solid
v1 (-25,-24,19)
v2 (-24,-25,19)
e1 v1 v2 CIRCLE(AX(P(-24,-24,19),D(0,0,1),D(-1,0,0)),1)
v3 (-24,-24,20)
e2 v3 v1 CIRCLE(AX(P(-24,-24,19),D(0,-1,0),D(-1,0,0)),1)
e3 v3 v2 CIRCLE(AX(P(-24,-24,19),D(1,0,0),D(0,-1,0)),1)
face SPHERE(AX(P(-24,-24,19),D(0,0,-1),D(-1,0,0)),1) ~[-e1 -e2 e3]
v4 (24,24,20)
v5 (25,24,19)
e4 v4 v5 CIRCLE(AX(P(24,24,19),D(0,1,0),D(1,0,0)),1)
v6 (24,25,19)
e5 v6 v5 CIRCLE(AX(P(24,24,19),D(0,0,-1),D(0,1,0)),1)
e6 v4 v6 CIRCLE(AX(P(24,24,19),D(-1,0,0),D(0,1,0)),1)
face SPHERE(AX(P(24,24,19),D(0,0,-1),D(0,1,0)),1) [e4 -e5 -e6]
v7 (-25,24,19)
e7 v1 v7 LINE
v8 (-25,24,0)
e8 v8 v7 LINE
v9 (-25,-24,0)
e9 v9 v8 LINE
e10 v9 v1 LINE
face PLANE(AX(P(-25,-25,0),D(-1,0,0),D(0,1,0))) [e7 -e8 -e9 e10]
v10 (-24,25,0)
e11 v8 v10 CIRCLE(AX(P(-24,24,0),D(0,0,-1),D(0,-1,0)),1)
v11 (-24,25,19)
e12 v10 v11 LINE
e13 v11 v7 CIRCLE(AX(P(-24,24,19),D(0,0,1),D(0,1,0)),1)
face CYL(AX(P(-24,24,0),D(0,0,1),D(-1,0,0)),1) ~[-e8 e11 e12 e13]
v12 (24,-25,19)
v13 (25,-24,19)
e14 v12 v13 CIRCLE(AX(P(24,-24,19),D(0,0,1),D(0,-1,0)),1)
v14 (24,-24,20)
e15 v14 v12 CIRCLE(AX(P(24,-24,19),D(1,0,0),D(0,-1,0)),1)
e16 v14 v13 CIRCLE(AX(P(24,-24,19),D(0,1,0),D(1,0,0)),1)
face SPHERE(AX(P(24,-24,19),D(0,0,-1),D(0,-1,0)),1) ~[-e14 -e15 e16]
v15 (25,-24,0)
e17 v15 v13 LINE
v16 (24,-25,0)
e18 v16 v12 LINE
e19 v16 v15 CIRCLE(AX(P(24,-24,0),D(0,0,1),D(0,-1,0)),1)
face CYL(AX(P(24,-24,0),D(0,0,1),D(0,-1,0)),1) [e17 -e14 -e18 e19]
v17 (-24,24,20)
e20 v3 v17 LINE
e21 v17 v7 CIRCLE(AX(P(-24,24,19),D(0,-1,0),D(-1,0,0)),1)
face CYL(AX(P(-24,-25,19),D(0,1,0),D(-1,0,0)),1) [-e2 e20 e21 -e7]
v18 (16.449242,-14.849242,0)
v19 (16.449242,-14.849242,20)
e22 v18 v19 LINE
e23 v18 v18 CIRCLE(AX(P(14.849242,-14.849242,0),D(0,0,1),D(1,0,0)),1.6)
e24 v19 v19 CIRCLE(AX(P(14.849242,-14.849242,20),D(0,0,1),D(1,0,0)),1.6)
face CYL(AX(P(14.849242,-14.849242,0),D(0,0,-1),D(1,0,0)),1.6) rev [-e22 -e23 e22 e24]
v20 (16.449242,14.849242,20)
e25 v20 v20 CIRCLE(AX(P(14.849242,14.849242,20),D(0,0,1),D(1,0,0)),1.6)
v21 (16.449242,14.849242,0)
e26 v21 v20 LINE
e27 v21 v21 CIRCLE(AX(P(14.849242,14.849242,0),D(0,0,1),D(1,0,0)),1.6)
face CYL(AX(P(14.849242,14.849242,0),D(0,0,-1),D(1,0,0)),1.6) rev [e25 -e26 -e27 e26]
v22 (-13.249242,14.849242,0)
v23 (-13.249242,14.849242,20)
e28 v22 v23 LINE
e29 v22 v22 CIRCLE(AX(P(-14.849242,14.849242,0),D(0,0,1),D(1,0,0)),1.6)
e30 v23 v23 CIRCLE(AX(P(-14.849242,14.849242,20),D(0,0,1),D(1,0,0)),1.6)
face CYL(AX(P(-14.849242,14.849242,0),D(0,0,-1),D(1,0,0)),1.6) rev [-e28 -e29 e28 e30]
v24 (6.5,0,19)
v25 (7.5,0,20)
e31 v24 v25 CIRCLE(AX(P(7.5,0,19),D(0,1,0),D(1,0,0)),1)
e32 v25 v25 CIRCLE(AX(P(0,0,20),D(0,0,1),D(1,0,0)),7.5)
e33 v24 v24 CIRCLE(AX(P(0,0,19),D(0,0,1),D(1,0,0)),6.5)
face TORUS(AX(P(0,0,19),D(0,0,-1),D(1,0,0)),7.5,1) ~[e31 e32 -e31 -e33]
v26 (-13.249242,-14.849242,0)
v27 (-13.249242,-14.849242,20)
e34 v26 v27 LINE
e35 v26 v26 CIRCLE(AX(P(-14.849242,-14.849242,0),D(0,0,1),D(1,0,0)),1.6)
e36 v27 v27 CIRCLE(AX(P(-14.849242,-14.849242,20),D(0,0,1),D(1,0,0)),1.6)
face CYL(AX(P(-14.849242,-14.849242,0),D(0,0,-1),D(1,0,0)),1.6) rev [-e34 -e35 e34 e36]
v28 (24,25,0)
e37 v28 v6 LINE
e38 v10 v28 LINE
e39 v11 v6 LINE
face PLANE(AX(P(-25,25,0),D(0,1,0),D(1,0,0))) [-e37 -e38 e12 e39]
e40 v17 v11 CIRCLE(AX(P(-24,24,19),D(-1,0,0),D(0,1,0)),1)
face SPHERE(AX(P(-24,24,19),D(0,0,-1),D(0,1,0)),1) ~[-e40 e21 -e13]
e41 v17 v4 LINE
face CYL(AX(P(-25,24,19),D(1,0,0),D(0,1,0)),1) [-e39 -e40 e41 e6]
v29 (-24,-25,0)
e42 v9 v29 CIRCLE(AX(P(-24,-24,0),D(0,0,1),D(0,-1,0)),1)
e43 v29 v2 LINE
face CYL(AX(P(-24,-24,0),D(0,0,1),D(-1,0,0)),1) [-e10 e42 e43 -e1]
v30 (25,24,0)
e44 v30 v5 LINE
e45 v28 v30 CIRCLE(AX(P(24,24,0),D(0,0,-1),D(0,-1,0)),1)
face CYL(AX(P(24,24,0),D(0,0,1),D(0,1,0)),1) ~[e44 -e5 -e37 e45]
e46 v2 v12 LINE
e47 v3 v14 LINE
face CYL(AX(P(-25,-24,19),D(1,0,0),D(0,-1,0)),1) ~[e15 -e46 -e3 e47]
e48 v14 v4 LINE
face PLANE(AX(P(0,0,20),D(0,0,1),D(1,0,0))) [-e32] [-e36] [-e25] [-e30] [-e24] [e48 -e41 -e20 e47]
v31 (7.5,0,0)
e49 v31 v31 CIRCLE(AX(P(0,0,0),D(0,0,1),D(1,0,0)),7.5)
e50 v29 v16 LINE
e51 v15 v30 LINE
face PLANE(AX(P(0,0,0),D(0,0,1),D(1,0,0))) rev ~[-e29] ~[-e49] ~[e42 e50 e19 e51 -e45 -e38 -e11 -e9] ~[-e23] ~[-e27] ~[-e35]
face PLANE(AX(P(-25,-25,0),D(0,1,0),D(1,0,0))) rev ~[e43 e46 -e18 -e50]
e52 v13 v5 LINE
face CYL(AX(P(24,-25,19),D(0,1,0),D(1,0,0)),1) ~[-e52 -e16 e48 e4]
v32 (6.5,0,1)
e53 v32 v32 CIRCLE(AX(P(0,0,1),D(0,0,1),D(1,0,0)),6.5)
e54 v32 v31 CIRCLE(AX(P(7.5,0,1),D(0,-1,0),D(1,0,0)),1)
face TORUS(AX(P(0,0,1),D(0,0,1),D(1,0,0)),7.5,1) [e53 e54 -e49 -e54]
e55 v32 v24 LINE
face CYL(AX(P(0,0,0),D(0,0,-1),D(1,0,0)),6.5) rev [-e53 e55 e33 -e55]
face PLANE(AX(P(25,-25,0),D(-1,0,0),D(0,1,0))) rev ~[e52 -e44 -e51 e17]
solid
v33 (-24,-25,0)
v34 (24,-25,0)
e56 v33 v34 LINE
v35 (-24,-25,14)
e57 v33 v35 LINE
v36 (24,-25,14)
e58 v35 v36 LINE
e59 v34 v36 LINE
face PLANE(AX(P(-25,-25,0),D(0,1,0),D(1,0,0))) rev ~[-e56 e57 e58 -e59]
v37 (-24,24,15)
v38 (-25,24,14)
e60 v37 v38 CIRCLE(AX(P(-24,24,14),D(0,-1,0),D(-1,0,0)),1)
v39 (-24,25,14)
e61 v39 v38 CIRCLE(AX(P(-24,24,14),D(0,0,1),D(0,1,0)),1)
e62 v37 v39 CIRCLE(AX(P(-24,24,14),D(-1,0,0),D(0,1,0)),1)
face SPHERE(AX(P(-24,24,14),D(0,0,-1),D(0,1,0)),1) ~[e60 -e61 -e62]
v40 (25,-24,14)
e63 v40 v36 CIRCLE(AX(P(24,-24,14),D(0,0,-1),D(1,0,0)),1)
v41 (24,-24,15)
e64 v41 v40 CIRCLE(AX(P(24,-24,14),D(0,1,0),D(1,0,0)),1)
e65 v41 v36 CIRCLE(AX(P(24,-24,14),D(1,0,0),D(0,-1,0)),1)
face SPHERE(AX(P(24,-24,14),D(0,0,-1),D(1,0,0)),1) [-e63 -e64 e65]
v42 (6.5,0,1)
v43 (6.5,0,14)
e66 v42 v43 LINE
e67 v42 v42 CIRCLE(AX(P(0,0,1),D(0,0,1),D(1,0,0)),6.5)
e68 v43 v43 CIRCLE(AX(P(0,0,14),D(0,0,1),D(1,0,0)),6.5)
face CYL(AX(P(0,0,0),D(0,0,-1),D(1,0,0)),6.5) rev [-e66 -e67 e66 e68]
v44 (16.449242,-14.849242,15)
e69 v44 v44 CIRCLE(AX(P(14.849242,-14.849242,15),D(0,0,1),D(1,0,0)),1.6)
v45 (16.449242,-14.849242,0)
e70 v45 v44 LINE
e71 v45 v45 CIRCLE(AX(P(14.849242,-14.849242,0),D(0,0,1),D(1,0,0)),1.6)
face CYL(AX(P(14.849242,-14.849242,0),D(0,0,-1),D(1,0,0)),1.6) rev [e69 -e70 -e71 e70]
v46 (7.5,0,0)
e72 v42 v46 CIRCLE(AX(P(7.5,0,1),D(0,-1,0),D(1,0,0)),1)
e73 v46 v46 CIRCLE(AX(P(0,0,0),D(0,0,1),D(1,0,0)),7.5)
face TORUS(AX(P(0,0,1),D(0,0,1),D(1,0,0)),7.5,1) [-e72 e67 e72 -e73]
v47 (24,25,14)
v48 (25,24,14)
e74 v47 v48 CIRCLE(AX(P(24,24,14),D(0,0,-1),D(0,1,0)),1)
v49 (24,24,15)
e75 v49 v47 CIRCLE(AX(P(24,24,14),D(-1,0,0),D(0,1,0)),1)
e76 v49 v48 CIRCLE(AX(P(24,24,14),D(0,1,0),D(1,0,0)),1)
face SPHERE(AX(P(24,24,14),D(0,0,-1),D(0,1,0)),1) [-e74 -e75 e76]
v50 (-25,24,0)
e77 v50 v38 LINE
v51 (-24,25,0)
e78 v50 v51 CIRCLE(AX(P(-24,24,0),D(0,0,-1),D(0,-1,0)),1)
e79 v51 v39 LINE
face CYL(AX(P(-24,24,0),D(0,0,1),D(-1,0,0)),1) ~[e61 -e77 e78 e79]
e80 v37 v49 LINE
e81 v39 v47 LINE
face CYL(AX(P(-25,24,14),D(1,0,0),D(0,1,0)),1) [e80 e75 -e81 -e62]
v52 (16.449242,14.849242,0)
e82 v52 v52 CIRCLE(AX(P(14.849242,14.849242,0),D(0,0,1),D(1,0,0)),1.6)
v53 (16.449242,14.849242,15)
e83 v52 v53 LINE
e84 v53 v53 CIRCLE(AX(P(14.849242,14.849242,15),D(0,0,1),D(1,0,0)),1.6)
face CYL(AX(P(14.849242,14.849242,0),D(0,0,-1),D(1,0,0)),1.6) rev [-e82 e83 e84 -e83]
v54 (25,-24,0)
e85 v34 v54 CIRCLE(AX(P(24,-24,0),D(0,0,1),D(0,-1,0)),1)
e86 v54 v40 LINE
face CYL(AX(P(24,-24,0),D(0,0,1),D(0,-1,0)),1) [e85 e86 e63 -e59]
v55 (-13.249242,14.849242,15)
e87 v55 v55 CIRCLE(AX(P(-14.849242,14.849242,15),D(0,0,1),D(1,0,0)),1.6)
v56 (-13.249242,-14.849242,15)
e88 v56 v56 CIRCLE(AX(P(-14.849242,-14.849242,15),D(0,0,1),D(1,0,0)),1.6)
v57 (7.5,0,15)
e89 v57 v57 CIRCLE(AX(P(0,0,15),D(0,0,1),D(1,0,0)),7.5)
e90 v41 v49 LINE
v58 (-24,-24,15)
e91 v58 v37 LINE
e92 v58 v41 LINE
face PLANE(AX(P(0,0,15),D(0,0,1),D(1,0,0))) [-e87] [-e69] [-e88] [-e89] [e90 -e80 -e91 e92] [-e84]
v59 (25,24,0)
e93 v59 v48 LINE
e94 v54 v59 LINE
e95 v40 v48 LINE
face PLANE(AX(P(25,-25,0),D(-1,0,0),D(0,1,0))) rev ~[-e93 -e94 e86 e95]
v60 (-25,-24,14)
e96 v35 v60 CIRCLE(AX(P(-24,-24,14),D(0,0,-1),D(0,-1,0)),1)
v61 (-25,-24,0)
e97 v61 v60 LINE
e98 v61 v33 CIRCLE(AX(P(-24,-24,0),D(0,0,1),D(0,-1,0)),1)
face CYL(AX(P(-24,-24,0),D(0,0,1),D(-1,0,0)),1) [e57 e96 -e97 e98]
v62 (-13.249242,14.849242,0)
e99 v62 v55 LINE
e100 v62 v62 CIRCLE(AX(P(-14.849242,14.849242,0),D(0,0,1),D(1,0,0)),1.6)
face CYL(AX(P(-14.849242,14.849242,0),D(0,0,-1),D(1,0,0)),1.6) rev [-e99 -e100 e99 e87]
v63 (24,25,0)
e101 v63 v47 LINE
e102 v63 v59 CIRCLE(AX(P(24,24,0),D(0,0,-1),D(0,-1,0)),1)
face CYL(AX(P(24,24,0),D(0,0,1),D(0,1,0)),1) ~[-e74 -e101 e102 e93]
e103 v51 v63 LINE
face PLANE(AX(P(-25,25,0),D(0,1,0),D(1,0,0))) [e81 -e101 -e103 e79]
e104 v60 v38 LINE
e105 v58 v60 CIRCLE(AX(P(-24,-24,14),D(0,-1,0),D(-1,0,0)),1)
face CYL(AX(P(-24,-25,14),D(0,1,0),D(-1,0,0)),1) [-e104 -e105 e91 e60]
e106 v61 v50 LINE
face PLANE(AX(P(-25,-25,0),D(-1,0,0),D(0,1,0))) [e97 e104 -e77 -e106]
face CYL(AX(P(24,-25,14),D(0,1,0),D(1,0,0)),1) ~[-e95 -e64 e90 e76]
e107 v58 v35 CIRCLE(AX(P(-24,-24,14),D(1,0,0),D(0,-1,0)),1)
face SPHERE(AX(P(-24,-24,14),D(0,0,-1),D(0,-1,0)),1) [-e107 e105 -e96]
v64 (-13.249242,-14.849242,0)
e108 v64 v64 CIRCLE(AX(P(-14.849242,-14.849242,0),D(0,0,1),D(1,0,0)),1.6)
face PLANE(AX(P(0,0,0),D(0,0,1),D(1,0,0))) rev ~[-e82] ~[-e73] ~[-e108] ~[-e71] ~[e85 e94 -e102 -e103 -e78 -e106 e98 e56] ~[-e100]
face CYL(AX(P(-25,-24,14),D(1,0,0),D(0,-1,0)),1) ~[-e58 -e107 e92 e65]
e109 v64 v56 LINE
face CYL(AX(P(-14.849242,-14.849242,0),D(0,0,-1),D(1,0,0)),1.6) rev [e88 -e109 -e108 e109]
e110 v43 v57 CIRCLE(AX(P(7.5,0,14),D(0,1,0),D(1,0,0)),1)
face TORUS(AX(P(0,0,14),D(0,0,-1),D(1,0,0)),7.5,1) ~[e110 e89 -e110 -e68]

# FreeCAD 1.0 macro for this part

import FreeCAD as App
import Part
import Sketcher

V = App.Vector
Q = App.Units.Quantity


def edges_at(feature, points):
    """Names of the edges that pass closest to the given points."""
    edges = feature.Shape.Edges
    near = lambda p: min(range(len(edges)), key=lambda i: edges[i].distToShape(Part.Vertex(*p))[0])
    return sorted({f"Edge{near(p) + 1}" for p in points})


def add_polygon(sketch, points):
    """Adds a closed chain of lines whose ends are joined by coincident constraints."""
    first, n = sketch.GeometryCount, len(points)
    for a, b in zip(points, points[1:] + points[:1]):
        sketch.addGeometry(Part.LineSegment(App.Vector(*a, 0), App.Vector(*b, 0)), False)
    for i in range(n):
        sketch.addConstraint(Sketcher.Constraint("Coincident", first + i, 2, first + (i + 1) % n, 1))

doc = App.newDocument("Part")
body = doc.addObject("PartDesign::Body", "Body")

# Sketch on XY plane
sketch1 = body.newObject("Sketcher::SketchObject", "Sketch")
sketch1.AttachmentSupport = (doc.getObject("XY_Plane"), [""])
sketch1.MapMode = "FlatFace"
add_polygon(sketch1, [(-25, 25), (-25, -25), (25, -25), (25, 25)])  # lines 0-3
sketch1.addGeometry(Part.Circle(V(-14.8, -14.8, 0), V(0, 0, 1), 1.6), False)  # 4
sketch1.addGeometry(Part.Circle(V(14.8, -14.8, 0), V(0, 0, 1), 1.6), False)  # 5
sketch1.addGeometry(Part.Circle(V(-14.8, 14.8, 0), V(0, 0, 1), 1.6), False)  # 6
sketch1.addGeometry(Part.Circle(V(0, 0, 0), V(0, 0, 1), 6.5), False)  # 7
sketch1.addGeometry(Part.Circle(V(14.8, 14.8, 0), V(0, 0, 1), 1.6), False)  # 8
sketch1.addConstraint([
    Sketcher.Constraint("Vertical", 0),
    Sketcher.Constraint("Horizontal", 1),
    Sketcher.Constraint("Vertical", 2),
    Sketcher.Constraint("Horizontal", 3),
    Sketcher.Constraint("Coincident", 7, 3, -1, 1),
    Sketcher.Constraint("Equal", 4, 5),
    Sketcher.Constraint("Equal", 5, 6),
    Sketcher.Constraint("Equal", 6, 8),
    Sketcher.Constraint("Symmetric", 5, 3, 6, 3, -1, 1),
    Sketcher.Constraint("Symmetric", 4, 3, 8, 3, -1, 1),
    Sketcher.Constraint("Symmetric", 0, 2, 2, 2, -1, 1),
    Sketcher.Constraint("Symmetric", 4, 3, 5, 3, -2),
    Sketcher.Constraint("Equal", 3, 0),
    Sketcher.Constraint("Diameter", 7, Q("13 mm")),
    Sketcher.Constraint("Diameter", 4, Q("3.2 mm")),
    Sketcher.Constraint("DistanceX", 1, 1, 1, 2, Q("50 mm")),
    Sketcher.Constraint("DistanceX", 4, 3, -1, 1, Q("14.849242 mm")),
    Sketcher.Constraint("DistanceY", 4, 3, -1, 1, Q("14.849242 mm")),
])
pad1 = body.newObject("PartDesign::Pad", "Pad")
pad1.Profile = sketch1
pad1.Length = 15
doc.recompute()

fillet = body.newObject("PartDesign::Fillet", "Fillet")
fillet.Base = (pad1, edges_at(pad1, [
    (-25, -25, 7.5),
    (25, -25, 7.5),
    (25, 25, 7.5),
    (-25, 25, 7.5),
    (0, 25, 15),
    (25, 0, 15),
    (0, -25, 15),
    (-25, 0, 15),
    (-6.5, 0, 15),
    (-6.5, 0, 0),
]))
fillet.Radius = 1
body2 = doc.addObject("PartDesign::Body", "Body001")

# Sketch on XY plane
sketch2 = body2.newObject("Sketcher::SketchObject", "Sketch001")
sketch2.AttachmentSupport = (doc.getObject("XY_Plane001"), [""])
sketch2.MapMode = "FlatFace"
add_polygon(sketch2, [(-25, 25), (-25, -25), (25, -25), (25, 25)])  # lines 0-3
sketch2.addGeometry(Part.Circle(V(-14.8, -14.8, 0), V(0, 0, 1), 1.6), False)  # 4
sketch2.addGeometry(Part.Circle(V(14.8, -14.8, 0), V(0, 0, 1), 1.6), False)  # 5
sketch2.addGeometry(Part.Circle(V(-14.8, 14.8, 0), V(0, 0, 1), 1.6), False)  # 6
sketch2.addGeometry(Part.Circle(V(0, 0, 0), V(0, 0, 1), 6.5), False)  # 7
sketch2.addGeometry(Part.Circle(V(14.8, 14.8, 0), V(0, 0, 1), 1.6), False)  # 8
sketch2.addConstraint([
    Sketcher.Constraint("Vertical", 0),
    Sketcher.Constraint("Horizontal", 1),
    Sketcher.Constraint("Vertical", 2),
    Sketcher.Constraint("Horizontal", 3),
    Sketcher.Constraint("Coincident", 7, 3, -1, 1),
    Sketcher.Constraint("Equal", 4, 5),
    Sketcher.Constraint("Equal", 5, 6),
    Sketcher.Constraint("Equal", 6, 8),
    Sketcher.Constraint("Symmetric", 5, 3, 6, 3, -1, 1),
    Sketcher.Constraint("Symmetric", 4, 3, 8, 3, -1, 1),
    Sketcher.Constraint("Symmetric", 0, 2, 2, 2, -1, 1),
    Sketcher.Constraint("Symmetric", 4, 3, 5, 3, -2),
    Sketcher.Constraint("Equal", 3, 0),
    Sketcher.Constraint("Diameter", 7, Q("13 mm")),
    Sketcher.Constraint("Diameter", 4, Q("3.2 mm")),
    Sketcher.Constraint("DistanceX", 1, 1, 1, 2, Q("50 mm")),
    Sketcher.Constraint("DistanceX", 4, 3, -1, 1, Q("14.849242 mm")),
    Sketcher.Constraint("DistanceY", 4, 3, -1, 1, Q("14.849242 mm")),
])
pad2 = body2.newObject("PartDesign::Pad", "Pad001")
pad2.Profile = sketch2
pad2.Length = 20
doc.recompute()

fillet2 = body2.newObject("PartDesign::Fillet", "Fillet001")
fillet2.Base = (pad2, edges_at(pad2, [
    (-25, -25, 10),
    (25, -25, 10),
    (25, 25, 10),
    (-25, 25, 10),
    (0, 25, 20),
    (-25, 0, 20),
    (0, -25, 20),
    (25, 0, 20),
    (-6.5, 0, 20),
    (-6.5, 0, 0),
]))
fillet2.Radius = 1

doc.recompute()
